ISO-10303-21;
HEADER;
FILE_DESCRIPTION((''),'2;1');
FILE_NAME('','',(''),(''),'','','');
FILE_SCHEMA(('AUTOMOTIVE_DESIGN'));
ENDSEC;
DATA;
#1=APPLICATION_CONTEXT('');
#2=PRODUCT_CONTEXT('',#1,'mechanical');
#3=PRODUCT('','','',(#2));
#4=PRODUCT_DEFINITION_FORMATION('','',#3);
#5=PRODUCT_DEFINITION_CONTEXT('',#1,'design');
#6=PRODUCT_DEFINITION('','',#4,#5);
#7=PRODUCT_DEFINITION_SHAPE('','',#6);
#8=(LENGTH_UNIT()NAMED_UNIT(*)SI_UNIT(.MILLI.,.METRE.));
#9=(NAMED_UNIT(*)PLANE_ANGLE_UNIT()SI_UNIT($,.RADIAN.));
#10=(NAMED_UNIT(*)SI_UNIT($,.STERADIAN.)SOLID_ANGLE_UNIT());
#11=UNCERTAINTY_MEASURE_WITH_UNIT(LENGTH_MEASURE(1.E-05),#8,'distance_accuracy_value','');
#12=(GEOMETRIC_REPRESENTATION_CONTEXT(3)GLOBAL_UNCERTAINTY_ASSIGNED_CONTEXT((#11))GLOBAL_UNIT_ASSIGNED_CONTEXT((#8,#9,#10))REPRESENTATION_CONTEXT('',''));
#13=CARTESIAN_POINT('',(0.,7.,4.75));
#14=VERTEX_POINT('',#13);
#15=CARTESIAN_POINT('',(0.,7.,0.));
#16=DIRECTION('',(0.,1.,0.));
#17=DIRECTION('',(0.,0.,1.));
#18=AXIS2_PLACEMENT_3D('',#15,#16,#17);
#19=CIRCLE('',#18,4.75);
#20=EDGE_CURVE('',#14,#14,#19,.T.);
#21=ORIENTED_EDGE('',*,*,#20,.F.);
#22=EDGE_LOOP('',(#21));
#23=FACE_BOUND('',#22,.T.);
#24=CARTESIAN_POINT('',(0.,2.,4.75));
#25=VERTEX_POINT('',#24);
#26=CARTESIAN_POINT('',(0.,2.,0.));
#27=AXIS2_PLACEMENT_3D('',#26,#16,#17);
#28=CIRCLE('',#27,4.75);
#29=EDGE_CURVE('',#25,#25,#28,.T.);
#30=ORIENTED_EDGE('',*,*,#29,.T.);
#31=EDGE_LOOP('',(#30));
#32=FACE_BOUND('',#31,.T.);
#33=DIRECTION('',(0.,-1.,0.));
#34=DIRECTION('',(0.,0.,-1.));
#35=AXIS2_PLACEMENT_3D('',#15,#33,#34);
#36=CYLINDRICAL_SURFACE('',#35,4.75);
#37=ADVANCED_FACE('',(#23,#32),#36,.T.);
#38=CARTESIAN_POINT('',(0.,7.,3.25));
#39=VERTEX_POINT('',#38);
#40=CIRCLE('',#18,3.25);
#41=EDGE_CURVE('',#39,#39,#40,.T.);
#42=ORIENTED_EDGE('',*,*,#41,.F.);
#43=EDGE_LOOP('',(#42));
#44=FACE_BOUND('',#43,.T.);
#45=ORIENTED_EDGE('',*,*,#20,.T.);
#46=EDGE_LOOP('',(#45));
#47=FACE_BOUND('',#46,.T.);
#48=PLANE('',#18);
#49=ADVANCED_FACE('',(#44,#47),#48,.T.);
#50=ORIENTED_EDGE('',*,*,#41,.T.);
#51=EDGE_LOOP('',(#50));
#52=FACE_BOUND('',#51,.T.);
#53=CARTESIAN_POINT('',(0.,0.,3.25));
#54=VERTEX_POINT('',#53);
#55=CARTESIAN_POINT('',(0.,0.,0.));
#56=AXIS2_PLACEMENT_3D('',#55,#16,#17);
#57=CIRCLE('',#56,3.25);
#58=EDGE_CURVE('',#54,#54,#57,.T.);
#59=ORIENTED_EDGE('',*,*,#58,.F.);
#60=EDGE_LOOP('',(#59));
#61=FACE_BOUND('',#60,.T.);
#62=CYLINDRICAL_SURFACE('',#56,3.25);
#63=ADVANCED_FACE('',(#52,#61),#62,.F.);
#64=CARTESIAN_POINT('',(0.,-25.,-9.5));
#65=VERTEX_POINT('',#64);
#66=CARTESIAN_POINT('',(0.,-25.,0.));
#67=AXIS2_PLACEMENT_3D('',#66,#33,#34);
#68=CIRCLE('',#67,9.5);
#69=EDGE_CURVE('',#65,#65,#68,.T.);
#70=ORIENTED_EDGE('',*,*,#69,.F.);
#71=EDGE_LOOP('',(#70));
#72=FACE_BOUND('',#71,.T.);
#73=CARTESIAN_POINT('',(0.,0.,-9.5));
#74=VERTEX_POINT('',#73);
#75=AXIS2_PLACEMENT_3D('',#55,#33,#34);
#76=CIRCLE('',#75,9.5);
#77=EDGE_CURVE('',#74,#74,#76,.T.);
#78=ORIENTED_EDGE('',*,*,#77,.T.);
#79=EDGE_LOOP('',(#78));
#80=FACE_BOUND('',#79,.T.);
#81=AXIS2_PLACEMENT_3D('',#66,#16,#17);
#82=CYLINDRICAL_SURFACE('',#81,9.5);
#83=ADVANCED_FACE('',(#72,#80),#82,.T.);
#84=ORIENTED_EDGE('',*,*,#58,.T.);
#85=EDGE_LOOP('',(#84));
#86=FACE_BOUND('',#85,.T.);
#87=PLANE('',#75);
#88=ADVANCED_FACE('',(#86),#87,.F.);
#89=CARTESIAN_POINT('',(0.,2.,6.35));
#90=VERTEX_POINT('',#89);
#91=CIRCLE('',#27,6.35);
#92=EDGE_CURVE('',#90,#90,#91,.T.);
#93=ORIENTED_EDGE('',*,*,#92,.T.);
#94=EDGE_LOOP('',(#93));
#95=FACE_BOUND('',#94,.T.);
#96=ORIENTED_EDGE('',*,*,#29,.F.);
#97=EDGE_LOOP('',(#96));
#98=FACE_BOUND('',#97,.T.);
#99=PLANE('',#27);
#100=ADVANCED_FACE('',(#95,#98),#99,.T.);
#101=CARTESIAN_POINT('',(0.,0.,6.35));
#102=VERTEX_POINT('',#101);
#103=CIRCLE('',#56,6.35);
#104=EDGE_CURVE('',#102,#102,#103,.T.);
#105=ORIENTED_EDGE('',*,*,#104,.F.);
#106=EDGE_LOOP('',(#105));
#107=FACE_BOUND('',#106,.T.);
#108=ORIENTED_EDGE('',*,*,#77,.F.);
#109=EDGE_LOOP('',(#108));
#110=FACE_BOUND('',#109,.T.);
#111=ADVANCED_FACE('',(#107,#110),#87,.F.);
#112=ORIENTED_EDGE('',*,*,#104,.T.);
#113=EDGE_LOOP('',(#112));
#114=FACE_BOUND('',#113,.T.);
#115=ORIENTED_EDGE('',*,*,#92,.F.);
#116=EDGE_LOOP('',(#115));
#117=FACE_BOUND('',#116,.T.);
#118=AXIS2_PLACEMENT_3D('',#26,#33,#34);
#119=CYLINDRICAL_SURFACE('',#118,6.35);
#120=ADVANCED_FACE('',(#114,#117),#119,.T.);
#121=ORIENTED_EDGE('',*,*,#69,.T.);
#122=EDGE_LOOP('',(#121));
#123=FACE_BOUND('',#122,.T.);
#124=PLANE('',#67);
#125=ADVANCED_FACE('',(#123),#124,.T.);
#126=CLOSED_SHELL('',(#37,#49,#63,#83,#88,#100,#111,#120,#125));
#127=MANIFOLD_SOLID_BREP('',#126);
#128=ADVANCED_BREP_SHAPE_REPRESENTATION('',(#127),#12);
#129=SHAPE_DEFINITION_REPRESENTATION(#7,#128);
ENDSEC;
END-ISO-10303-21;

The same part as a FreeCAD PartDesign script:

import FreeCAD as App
import Part
import Sketcher
Q = App.Units.Quantity

doc = App.newDocument("Part")
params = doc.addObject("Spreadsheet::Sheet", "Params")
for row, (alias, value) in enumerate([
    ("sketch1_diameter", "12.7 mm"),
    ("pad1_length", "2 mm"),
    ("sketch2_diameter", "9.5 mm"),
    ("pad2_length", "5 mm"),
    ("sketch3_diameter", "6.5 mm"),
    ("sketch4_diameter", "19 mm"),
    ("pad3_length", "25 mm"),
], start=1):
    params.set(f"A{row}", alias)
    params.set(f"B{row}", "=" + value)
    params.setAlias(f"B{row}", alias)

body = doc.addObject("PartDesign::Body", "Body")

# Sketch on XZ plane
sketch1 = body.newObject("Sketcher::SketchObject", "Sketch")
sketch1.AttachmentSupport = (doc.getObject("XZ_Plane"), [""])
sketch1.MapMode = "FlatFace"
sketch1.addGeometry(Part.Circle(App.Vector(0, 0, 0), App.Vector(0, 0, 1), 6.35), False)
sketch1.addConstraint([
    Sketcher.Constraint("Coincident", 0, 3, -1, 1),
    Sketcher.Constraint("Diameter", 0, Q("12.7 mm")),
])
sketch1.setExpression("Constraints[1]", "Params.sketch1_diameter")
pad1 = body.newObject("PartDesign::Pad", "Pad")
pad1.Profile = sketch1
pad1.setExpression("Length", "Params.pad1_length")
pad1.Reversed = True

# Sketch on XZ plane
sketch2 = body.newObject("Sketcher::SketchObject", "Sketch001")
sketch2.AttachmentSupport = (doc.getObject("XZ_Plane"), [""])
sketch2.MapMode = "FlatFace"
sketch2.AttachmentOffset = App.Placement(App.Vector(0, 0, -2), App.Rotation())
sketch2.addGeometry(Part.Circle(App.Vector(0, 0, 0), App.Vector(0, 0, 1), 4.75), False)
sketch2.addConstraint([
    Sketcher.Constraint("Coincident", 0, 3, -1, 1),
    Sketcher.Constraint("Diameter", 0, Q("9.5 mm")),
])
sketch2.setExpression("Constraints[1]", "Params.sketch2_diameter")
pad2 = body.newObject("PartDesign::Pad", "Pad001")
pad2.Profile = sketch2
pad2.setExpression("Length", "Params.pad2_length")
pad2.Reversed = True

# Sketch on XZ plane
sketch3 = body.newObject("Sketcher::SketchObject", "Sketch002")
sketch3.AttachmentSupport = (doc.getObject("XZ_Plane"), [""])
sketch3.MapMode = "FlatFace"
sketch3.AttachmentOffset = App.Placement(App.Vector(0, 0, -7), App.Rotation())
sketch3.addGeometry(Part.Circle(App.Vector(0, 0, 0), App.Vector(0, 0, 1), 3.25), False)
sketch3.addConstraint([
    Sketcher.Constraint("Coincident", 0, 3, -1, 1),
    Sketcher.Constraint("Diameter", 0, Q("6.5 mm")),
])
sketch3.setExpression("Constraints[1]", "Params.sketch3_diameter")
pocket1 = body.newObject("PartDesign::Pocket", "Pocket")
pocket1.Profile = sketch3
pocket1.Type = "ThroughAll"
pocket1.Reversed = True

# Sketch on XZ plane
sketch4 = body.newObject("Sketcher::SketchObject", "Sketch003")
sketch4.AttachmentSupport = (doc.getObject("XZ_Plane"), [""])
sketch4.MapMode = "FlatFace"
sketch4.addGeometry(Part.Circle(App.Vector(0, 0, 0), App.Vector(0, 0, 1), 9.5), False)
sketch4.addConstraint([
    Sketcher.Constraint("Coincident", 0, 3, -1, 1),
    Sketcher.Constraint("Diameter", 0, Q("19 mm")),
])
sketch4.setExpression("Constraints[1]", "Params.sketch4_diameter")
pad3 = body.newObject("PartDesign::Pad", "Pad002")
pad3.Profile = sketch4
pad3.setExpression("Length", "Params.pad3_length")

doc.recompute()
